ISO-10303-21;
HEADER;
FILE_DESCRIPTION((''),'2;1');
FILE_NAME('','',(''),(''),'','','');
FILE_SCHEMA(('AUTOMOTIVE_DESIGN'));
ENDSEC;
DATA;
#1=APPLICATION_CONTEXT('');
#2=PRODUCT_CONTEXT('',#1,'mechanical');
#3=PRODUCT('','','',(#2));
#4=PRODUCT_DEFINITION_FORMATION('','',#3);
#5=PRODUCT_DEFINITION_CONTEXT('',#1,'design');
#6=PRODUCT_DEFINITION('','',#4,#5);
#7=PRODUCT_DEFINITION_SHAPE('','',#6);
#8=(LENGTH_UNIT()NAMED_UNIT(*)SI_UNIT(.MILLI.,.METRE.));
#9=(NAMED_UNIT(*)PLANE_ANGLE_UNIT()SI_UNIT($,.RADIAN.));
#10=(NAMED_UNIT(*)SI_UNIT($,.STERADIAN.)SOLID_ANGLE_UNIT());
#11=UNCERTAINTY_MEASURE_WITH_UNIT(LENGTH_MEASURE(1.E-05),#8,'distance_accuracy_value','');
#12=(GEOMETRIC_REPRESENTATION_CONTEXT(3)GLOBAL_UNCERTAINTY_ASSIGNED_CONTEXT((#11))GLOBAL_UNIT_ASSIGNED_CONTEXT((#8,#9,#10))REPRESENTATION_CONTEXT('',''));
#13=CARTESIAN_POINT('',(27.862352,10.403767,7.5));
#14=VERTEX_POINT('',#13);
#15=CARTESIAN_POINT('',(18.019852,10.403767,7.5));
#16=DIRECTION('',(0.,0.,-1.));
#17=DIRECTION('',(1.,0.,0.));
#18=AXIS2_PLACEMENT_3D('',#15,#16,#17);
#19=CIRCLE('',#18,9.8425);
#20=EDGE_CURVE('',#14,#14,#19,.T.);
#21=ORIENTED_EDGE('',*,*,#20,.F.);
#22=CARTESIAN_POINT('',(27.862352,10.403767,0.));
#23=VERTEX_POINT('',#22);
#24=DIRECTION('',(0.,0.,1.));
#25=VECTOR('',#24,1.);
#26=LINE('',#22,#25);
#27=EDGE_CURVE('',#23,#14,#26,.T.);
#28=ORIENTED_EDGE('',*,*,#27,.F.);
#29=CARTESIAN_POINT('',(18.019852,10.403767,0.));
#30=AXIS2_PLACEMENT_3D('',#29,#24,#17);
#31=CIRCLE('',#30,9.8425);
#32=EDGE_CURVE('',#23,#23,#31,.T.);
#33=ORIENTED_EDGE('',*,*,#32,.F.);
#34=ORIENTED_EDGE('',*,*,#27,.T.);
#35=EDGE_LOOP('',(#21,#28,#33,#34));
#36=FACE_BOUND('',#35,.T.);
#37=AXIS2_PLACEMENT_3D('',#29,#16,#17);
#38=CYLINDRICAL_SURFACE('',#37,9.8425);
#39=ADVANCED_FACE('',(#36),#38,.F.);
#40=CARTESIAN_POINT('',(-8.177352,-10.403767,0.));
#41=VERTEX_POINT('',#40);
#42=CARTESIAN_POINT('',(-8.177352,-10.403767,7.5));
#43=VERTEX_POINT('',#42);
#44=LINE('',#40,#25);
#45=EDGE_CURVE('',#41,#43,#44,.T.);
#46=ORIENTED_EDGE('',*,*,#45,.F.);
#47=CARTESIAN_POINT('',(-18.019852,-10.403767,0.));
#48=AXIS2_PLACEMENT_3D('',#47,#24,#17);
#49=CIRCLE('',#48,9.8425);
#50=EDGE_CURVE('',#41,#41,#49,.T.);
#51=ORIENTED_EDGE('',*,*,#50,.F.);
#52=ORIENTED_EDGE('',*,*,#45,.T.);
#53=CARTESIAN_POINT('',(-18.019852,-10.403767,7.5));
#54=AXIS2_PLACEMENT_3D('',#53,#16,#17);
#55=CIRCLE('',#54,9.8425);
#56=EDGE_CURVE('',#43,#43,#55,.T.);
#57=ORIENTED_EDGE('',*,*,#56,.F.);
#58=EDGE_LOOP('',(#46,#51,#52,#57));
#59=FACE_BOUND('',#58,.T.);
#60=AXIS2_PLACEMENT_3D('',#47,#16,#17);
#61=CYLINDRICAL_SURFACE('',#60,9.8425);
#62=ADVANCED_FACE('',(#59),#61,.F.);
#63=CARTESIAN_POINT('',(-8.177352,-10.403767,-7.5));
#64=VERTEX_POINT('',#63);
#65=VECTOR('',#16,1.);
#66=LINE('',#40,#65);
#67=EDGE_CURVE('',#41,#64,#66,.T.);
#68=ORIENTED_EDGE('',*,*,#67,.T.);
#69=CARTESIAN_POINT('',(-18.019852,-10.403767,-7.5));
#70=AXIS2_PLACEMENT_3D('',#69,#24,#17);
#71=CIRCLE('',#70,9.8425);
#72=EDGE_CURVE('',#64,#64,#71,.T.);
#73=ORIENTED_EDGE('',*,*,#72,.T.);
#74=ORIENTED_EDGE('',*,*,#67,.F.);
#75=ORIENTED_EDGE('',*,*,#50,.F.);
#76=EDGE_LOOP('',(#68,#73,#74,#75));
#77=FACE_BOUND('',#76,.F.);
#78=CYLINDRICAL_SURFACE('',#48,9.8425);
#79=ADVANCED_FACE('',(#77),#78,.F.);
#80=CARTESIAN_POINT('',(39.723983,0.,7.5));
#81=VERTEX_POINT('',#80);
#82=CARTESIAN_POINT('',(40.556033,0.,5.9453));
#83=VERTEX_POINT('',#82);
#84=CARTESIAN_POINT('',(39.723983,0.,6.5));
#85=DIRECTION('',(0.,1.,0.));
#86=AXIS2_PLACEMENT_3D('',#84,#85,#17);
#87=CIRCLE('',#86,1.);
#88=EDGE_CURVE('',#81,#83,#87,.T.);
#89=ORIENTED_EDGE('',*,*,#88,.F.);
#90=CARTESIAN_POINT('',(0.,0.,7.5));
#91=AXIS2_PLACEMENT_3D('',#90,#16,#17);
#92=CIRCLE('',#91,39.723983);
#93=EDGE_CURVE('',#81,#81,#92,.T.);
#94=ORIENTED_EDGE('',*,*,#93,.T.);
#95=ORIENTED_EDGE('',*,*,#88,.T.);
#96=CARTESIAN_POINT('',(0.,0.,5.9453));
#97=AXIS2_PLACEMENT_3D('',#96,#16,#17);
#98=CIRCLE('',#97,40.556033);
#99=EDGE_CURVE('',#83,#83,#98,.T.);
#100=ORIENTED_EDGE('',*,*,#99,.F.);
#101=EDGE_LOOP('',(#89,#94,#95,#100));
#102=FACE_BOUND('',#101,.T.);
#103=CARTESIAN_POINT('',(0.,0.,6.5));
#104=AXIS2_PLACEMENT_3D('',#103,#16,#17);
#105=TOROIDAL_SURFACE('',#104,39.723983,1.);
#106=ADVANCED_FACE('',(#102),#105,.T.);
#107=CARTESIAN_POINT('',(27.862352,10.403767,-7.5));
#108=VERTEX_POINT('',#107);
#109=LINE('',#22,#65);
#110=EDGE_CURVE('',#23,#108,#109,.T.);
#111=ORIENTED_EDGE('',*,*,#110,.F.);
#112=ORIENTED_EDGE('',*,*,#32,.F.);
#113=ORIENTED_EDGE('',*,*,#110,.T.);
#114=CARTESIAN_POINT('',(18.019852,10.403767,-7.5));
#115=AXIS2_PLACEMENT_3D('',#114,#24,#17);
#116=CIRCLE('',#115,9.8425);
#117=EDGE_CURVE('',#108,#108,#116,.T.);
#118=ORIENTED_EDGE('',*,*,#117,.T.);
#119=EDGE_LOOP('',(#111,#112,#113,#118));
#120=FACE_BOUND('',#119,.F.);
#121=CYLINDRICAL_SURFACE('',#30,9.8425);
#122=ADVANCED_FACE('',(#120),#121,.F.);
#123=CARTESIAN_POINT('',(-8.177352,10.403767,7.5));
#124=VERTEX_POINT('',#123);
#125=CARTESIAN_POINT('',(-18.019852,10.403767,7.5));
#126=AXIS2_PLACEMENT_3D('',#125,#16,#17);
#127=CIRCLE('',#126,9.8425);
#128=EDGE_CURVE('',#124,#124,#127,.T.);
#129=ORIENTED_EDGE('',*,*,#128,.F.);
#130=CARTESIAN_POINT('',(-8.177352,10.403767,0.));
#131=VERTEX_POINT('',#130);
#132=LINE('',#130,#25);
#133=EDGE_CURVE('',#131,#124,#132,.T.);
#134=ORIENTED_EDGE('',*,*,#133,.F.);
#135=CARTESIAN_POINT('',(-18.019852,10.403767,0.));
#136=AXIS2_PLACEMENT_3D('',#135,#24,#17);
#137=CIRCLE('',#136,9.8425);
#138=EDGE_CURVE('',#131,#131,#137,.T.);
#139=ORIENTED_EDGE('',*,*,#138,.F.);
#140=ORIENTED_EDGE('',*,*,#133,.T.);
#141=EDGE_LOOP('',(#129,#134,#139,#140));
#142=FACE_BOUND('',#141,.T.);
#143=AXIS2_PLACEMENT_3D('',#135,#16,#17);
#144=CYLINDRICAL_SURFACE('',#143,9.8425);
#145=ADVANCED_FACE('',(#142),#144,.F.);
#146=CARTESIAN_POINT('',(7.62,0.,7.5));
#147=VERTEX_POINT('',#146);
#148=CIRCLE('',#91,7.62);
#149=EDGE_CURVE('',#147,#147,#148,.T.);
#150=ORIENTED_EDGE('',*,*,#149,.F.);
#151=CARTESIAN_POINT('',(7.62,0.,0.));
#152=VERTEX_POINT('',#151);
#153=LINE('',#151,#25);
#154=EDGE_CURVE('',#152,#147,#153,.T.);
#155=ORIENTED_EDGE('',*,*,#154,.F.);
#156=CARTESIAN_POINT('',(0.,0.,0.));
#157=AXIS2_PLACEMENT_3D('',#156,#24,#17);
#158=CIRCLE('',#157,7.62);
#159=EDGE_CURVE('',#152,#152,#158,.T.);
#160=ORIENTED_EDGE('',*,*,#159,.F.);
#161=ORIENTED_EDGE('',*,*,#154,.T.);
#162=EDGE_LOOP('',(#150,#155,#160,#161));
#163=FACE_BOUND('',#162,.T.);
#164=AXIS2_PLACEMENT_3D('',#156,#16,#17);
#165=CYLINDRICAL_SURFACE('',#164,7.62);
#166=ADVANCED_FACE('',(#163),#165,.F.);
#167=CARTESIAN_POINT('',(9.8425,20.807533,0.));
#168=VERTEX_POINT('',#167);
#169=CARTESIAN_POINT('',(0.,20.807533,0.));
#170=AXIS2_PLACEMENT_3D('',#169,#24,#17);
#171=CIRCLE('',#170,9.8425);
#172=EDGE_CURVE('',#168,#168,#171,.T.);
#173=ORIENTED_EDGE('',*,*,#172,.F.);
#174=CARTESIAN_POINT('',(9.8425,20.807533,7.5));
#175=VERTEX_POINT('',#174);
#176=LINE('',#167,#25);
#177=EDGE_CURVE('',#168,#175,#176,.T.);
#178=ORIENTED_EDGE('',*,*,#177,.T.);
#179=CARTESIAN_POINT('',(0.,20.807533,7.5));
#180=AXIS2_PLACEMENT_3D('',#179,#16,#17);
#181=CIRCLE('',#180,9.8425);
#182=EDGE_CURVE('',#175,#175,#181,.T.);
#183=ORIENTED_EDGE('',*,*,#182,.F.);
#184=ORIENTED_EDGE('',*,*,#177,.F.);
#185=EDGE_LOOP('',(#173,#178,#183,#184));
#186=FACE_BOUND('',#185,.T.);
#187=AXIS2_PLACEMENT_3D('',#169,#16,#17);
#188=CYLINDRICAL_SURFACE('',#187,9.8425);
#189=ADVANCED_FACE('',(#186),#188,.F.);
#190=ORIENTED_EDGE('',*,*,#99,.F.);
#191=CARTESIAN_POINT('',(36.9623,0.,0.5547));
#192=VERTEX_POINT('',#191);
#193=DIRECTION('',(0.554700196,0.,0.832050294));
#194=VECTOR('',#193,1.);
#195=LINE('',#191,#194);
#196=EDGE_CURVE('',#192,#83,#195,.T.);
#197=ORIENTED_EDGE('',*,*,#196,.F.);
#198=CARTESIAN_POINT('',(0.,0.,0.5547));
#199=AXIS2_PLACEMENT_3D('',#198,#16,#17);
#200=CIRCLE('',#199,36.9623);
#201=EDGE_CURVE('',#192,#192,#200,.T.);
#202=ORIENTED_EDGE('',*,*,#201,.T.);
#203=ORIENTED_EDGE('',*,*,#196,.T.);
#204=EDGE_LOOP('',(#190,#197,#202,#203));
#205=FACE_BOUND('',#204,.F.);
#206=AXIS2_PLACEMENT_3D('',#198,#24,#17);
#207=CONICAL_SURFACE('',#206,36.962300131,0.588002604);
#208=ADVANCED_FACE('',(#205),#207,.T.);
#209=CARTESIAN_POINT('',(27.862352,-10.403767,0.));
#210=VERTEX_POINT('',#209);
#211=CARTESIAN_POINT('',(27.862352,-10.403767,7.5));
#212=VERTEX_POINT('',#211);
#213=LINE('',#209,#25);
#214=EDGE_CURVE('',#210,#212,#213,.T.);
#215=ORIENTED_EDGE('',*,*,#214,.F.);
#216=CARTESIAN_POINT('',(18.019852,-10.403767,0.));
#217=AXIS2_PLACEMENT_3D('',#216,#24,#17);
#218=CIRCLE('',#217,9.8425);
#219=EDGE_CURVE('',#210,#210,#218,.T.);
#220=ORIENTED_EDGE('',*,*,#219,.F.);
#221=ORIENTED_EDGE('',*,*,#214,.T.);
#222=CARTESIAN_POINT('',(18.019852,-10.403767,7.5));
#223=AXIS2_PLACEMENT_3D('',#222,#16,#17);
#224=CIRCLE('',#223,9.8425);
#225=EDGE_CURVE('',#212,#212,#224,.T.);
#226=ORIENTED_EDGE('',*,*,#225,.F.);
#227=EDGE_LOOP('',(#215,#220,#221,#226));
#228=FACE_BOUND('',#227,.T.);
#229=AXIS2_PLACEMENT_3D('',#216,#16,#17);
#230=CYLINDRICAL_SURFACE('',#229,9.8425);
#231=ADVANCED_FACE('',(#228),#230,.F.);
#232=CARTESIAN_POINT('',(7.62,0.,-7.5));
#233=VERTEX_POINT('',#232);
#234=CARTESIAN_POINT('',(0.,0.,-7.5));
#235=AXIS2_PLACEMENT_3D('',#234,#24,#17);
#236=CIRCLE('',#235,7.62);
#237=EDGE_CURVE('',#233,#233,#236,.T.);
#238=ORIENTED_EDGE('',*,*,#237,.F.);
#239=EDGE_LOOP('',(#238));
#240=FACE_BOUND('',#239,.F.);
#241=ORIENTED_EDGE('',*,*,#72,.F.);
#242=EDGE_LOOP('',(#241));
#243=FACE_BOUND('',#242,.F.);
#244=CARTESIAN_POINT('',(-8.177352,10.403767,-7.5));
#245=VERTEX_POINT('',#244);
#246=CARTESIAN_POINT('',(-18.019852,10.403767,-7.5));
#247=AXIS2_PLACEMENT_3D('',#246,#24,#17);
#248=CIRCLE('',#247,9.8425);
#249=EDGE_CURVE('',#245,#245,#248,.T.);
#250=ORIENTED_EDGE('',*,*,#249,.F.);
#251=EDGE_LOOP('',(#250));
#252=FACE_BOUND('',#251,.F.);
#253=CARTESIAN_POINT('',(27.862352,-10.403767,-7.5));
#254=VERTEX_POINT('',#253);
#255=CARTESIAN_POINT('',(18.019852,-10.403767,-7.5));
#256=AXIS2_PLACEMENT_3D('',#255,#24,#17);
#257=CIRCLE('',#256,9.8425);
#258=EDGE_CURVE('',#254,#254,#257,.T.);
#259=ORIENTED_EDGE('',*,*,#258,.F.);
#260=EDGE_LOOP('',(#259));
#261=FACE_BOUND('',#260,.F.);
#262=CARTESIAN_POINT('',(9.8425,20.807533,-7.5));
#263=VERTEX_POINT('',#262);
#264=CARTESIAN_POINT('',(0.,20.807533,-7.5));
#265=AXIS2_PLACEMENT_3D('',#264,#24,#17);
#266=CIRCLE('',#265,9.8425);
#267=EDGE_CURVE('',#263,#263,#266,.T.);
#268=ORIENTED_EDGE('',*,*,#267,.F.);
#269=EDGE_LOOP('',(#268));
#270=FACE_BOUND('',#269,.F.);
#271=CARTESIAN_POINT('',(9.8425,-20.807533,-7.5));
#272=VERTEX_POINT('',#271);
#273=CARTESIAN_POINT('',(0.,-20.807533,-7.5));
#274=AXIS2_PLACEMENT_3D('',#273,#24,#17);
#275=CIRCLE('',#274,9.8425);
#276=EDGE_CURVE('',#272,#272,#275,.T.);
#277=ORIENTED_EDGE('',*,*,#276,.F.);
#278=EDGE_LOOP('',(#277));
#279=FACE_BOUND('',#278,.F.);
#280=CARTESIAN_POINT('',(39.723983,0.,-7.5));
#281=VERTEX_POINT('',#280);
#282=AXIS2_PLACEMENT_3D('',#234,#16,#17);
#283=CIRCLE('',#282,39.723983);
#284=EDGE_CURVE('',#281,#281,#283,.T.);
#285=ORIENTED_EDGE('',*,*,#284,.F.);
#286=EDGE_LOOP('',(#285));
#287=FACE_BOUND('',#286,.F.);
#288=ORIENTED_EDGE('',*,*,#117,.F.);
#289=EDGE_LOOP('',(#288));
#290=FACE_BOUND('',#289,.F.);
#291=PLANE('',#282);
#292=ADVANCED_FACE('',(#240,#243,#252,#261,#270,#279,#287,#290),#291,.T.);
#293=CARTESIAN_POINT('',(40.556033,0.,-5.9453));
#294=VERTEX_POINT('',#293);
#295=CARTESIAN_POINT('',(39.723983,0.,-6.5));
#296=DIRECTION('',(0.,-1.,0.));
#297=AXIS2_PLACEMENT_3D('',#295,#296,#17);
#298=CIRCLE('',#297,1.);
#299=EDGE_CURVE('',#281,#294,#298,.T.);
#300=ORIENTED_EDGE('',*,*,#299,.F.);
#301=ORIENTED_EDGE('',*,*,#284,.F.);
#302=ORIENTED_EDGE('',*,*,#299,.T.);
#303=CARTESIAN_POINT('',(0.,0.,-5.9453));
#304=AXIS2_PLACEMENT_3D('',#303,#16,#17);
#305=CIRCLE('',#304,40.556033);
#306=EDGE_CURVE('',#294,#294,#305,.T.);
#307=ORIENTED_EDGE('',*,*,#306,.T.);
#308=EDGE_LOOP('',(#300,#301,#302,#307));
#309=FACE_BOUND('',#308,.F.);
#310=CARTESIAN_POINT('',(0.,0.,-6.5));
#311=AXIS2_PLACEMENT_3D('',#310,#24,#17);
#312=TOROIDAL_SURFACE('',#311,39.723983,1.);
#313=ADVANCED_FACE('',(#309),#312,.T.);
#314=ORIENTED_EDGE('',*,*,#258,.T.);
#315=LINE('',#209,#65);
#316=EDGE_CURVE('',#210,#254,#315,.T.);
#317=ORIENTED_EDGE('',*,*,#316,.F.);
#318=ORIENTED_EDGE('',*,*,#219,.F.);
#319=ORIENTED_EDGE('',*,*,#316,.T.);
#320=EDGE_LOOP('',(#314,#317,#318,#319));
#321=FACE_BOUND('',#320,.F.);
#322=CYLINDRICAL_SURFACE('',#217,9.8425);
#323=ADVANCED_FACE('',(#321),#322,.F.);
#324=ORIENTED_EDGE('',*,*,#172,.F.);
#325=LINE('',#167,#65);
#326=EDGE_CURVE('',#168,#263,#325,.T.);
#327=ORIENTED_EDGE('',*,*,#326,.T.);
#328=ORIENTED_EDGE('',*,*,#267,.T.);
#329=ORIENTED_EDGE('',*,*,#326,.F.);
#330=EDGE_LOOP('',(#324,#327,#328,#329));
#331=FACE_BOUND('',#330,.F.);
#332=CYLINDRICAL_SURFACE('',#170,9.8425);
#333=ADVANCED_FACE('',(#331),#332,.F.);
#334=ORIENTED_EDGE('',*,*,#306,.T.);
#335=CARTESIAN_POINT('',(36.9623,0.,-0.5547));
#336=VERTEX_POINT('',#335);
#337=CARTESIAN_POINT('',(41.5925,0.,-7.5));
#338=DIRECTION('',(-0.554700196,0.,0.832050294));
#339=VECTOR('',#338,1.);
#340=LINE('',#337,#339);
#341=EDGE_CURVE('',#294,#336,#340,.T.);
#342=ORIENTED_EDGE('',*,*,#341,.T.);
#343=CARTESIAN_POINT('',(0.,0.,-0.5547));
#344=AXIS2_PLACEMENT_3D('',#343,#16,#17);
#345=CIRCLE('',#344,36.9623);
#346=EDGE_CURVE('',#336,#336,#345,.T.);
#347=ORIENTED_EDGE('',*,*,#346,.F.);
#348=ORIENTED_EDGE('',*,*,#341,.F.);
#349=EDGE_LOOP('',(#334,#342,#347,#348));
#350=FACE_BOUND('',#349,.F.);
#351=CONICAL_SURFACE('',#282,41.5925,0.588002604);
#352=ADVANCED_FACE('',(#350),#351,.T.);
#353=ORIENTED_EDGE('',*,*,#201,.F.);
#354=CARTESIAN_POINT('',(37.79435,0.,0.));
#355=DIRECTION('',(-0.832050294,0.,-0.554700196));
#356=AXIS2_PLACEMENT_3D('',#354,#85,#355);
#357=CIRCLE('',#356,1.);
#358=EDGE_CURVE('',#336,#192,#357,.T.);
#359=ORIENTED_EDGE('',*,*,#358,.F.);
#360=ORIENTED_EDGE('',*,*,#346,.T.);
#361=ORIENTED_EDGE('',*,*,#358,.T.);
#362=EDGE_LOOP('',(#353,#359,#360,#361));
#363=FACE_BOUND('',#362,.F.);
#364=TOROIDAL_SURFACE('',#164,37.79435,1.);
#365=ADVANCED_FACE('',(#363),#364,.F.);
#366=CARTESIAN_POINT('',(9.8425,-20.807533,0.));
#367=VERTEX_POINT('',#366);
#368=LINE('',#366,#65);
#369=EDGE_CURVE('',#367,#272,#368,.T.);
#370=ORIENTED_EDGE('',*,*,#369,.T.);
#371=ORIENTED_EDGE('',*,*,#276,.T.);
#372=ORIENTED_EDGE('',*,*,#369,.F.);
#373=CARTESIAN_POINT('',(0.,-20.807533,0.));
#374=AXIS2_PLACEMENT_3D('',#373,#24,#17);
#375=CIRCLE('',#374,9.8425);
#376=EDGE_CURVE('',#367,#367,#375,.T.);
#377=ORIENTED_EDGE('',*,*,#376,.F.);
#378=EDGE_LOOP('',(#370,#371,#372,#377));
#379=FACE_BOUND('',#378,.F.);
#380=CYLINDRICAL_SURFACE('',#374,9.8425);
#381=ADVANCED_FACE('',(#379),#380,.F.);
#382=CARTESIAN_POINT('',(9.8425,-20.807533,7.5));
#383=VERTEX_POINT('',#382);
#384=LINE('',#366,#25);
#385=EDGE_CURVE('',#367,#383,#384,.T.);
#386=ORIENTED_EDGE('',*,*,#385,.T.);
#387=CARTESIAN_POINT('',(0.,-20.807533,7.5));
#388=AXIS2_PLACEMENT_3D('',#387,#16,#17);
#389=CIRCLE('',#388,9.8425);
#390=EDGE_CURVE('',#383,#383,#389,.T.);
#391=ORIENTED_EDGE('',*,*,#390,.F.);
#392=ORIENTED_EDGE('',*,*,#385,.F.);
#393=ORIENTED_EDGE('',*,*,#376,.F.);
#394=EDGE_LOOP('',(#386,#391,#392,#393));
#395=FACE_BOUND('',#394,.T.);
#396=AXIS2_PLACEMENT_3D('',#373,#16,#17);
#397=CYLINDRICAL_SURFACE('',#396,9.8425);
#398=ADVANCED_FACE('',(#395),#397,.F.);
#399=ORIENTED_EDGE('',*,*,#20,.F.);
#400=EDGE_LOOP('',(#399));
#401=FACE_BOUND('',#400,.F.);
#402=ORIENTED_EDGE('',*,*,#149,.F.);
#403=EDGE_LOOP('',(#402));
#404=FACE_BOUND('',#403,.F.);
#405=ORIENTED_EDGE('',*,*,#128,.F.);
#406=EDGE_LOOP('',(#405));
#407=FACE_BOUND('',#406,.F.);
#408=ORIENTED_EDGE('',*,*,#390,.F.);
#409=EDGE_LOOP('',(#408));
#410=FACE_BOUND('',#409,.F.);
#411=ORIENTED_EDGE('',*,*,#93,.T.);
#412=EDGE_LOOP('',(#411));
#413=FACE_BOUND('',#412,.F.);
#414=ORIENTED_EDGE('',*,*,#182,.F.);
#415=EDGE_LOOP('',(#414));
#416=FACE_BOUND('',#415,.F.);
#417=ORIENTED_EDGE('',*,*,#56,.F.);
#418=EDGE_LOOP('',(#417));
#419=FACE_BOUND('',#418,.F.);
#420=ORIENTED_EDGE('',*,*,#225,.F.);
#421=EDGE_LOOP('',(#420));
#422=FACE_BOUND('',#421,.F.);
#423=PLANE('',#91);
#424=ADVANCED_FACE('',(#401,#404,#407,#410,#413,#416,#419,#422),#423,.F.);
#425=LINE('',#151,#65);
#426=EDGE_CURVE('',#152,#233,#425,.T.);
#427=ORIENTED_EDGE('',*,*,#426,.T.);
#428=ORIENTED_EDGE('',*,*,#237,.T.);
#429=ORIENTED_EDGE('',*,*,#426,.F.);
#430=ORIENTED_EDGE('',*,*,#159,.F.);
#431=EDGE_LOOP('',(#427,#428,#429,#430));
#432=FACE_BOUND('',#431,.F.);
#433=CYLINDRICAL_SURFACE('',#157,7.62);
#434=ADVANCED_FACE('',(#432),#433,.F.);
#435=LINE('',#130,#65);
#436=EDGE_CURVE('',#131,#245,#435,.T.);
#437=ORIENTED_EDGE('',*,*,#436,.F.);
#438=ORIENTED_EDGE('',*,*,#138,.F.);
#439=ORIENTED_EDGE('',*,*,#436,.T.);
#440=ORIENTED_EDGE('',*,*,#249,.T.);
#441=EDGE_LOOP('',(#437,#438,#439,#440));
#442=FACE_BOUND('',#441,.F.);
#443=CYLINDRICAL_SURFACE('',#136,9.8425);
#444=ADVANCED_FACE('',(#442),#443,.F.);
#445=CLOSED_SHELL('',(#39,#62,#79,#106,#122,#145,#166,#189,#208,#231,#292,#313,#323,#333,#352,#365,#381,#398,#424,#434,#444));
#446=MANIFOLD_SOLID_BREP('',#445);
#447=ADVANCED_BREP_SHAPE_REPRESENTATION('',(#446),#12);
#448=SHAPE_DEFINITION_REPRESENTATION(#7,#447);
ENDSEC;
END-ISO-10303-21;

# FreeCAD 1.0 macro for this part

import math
import FreeCAD as App
import Part
import Sketcher
from FreeCAD import Vector


def edges_at(feature, points):
    """Names of the edges that pass closest to the given points."""
    edges = feature.Shape.Edges
    near = lambda p: min(range(len(edges)), key=lambda i: edges[i].distToShape(Part.Vertex(*p))[0])
    return sorted({f"Edge{near(p) + 1}" for p in points})

doc = App.newDocument("Part")
body = doc.addObject("PartDesign::Body", "Body")

sketch1 = body.newObject("Sketcher::SketchObject", "Sketch")
sketch1.AttachmentSupport = (doc.getObject("XZ_Plane"), [""])
sketch1.MapMode = "FlatFace"
sketch1.addGeometry([
    Part.LineSegment(Vector(41.6, 7.5, 0), Vector(0, 7.5, 0)),
    Part.LineSegment(Vector(0, 7.5, 0), Vector(0, -7.5, 0)),
    Part.LineSegment(Vector(0, -7.5, 0), Vector(41.6, -7.5, 0)),
    Part.LineSegment(Vector(41.6, -7.5, 0), Vector(37, -0.6, 0)),
    Part.ArcOfCircle(Part.Circle(Vector(37.8, 0, 0), Vector(0, 0, 1), 1), math.radians(146), math.radians(214)),
    Part.LineSegment(Vector(37, 0.6, 0), Vector(41.6, 7.5, 0)),
], False)
sketch1.addConstraint([
    Sketcher.Constraint("Coincident", 0, 2, 1, 1),
    Sketcher.Constraint("Coincident", 1, 2, 2, 1),
    Sketcher.Constraint("Coincident", 2, 2, 3, 1),
    Sketcher.Constraint("Tangent", 3, 2, 4, 2),
    Sketcher.Constraint("Tangent", 4, 1, 5, 1),
    Sketcher.Constraint("Coincident", 5, 2, 0, 1),
    Sketcher.Constraint("Horizontal", 0),
    Sketcher.Constraint("Vertical", 1),
    Sketcher.Constraint("Horizontal", 2),
    Sketcher.Constraint("Symmetric", 0, 2, 1, 2, -1, 1),
    Sketcher.Constraint("Symmetric", 3, 2, 4, 1, -1),
    Sketcher.Constraint("Radius", 4, 1.0),
    Sketcher.Constraint("DistanceY", 1, 2, 1, 1, 15.0),
    Sketcher.Constraint("DistanceX", 0, 2, 0, 1, 41.5925),
    Sketcher.Constraint("DistanceX", -1, 1, 3, 2, 36.9623),
])
revolution = body.newObject("PartDesign::Revolution", "Revolution")
revolution.Profile = sketch1
revolution.ReferenceAxis = (sketch1, ["V_Axis"])
revolution.Angle = 360
doc.recompute()

fillet = body.newObject("PartDesign::Fillet", "Fillet")
fillet.Base = (revolution, edges_at(revolution, [(-41.593, 0, 7.5), (-41.593, 0, -7.5)]))
fillet.Radius = 1

sketch2 = body.newObject("Sketcher::SketchObject", "Sketch001")
sketch2.AttachmentSupport = (doc.getObject("XY_Plane"), [""])
sketch2.MapMode = "FlatFace"
sketch2.addGeometry([
    Part.Circle(Vector(0, 0, 0), Vector(0, 0, 1), 8),
    Part.Circle(Vector(0, 21, 0), Vector(0, 0, 1), 10),
    Part.Circle(Vector(-18, 10, 0), Vector(0, 0, 1), 10),
    Part.Circle(Vector(-18, -10, 0), Vector(0, 0, 1), 10),
    Part.Circle(Vector(0, -21, 0), Vector(0, 0, 1), 10),
    Part.Circle(Vector(18, -10, 0), Vector(0, 0, 1), 10),
    Part.Circle(Vector(18, 10, 0), Vector(0, 0, 1), 10),
], False)
sketch2.addConstraint([
    Sketcher.Constraint("Coincident", 0, 3, -1, 1),
    Sketcher.Constraint("Equal", 1, 2),
    Sketcher.Constraint("Equal", 2, 3),
    Sketcher.Constraint("Equal", 3, 4),
    Sketcher.Constraint("Equal", 4, 5),
    Sketcher.Constraint("Equal", 5, 6),
    Sketcher.Constraint("Symmetric", 1, 3, 4, 3, -1, 1),
    Sketcher.Constraint("Symmetric", 2, 3, 5, 3, -1, 1),
    Sketcher.Constraint("Symmetric", 3, 3, 6, 3, -1, 1),
    Sketcher.Constraint("Symmetric", 3, 3, 5, 3, -2),
    Sketcher.Constraint("PointOnObject", 1, 3, -2),
    Sketcher.Constraint("Diameter", 0, 15.24),
    Sketcher.Constraint("Diameter", 1, 19.685),
    Sketcher.Constraint("DistanceY", 3, 3, 1, 3, 31.2113),
    Sketcher.Constraint("DistanceY", -1, 1, 1, 3, 20.807533),
    Sketcher.Constraint("DistanceX", 2, 3, -1, 1, 18.019852),
])
pocket1 = body.newObject("PartDesign::Pocket", "Pocket")
pocket1.Profile = sketch2
pocket1.Type = "ThroughAll"
pocket1.Midplane = True

doc.recompute()
